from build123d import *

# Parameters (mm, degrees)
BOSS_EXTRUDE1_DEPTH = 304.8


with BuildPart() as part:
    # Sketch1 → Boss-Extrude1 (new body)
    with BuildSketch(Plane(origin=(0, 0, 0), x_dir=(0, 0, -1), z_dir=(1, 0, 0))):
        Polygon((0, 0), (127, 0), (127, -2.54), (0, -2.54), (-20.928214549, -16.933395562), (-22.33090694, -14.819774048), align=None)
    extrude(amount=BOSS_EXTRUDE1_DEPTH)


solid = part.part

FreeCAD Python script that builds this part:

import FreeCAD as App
import Part
import Sketcher
from FreeCAD import Vector
Q = App.Units.Quantity

doc = App.newDocument("Part")
body = doc.addObject("PartDesign::Body", "Body")

# Sketch on YZ plane
sketch1 = body.newObject("Sketcher::SketchObject", "Sketch")
sketch1.AttachmentSupport = (doc.getObject("YZ_Plane"), [""])
sketch1.MapMode = "FlatFace"
sketch1.addGeometry([
    Part.LineSegment(Vector(0, -127, 0), Vector(0, 0, 0)),  # 0
    Part.LineSegment(Vector(0, 0, 0), Vector(-14.8, 22.3, 0)),  # 1
    Part.LineSegment(Vector(-14.8, 22.3, 0), Vector(-16.9, 20.9, 0)),  # 2
    Part.LineSegment(Vector(-16.9, 20.9, 0), Vector(-2.5, 0, 0)),  # 3
    Part.LineSegment(Vector(-2.5, 0, 0), Vector(-2.5, -127, 0)),  # 4
    Part.LineSegment(Vector(-2.5, -127, 0), Vector(0, -127, 0)),  # 5
], False)
sketch1.addConstraint([
    Sketcher.Constraint("Coincident", 0, 2, 1, 1),
    Sketcher.Constraint("Coincident", 1, 2, 2, 1),
    Sketcher.Constraint("Coincident", 2, 2, 3, 1),
    Sketcher.Constraint("Coincident", 3, 2, 4, 1),
    Sketcher.Constraint("Coincident", 4, 2, 5, 1),
    Sketcher.Constraint("Coincident", 5, 2, 0, 1),
    Sketcher.Constraint("Vertical", 0),
    Sketcher.Constraint("Vertical", 4),
    Sketcher.Constraint("Horizontal", 5),
    Sketcher.Constraint("Coincident", 0, 2, -1, 1),
    Sketcher.Constraint("PointOnObject", 3, 2, -1),
    Sketcher.Constraint("Perpendicular", 1, 2),
    Sketcher.Constraint("DistanceY", 0, 1, 0, 2, Q("5 in")),
    Sketcher.Constraint("Distance", 3, Q("1 in")),
    Sketcher.Constraint("DistanceX", 5, 1, 5, 2, Q("0.1 in")),
    Sketcher.Constraint("Angle", 1, Q("123.570005 deg")),
    Sketcher.Constraint("Distance", 1, Q("26.801028 mm")),
])
pad1 = body.newObject("PartDesign::Pad", "Pad")
pad1.Profile = sketch1
pad1.Length = Q("12 in")

doc.recompute()
